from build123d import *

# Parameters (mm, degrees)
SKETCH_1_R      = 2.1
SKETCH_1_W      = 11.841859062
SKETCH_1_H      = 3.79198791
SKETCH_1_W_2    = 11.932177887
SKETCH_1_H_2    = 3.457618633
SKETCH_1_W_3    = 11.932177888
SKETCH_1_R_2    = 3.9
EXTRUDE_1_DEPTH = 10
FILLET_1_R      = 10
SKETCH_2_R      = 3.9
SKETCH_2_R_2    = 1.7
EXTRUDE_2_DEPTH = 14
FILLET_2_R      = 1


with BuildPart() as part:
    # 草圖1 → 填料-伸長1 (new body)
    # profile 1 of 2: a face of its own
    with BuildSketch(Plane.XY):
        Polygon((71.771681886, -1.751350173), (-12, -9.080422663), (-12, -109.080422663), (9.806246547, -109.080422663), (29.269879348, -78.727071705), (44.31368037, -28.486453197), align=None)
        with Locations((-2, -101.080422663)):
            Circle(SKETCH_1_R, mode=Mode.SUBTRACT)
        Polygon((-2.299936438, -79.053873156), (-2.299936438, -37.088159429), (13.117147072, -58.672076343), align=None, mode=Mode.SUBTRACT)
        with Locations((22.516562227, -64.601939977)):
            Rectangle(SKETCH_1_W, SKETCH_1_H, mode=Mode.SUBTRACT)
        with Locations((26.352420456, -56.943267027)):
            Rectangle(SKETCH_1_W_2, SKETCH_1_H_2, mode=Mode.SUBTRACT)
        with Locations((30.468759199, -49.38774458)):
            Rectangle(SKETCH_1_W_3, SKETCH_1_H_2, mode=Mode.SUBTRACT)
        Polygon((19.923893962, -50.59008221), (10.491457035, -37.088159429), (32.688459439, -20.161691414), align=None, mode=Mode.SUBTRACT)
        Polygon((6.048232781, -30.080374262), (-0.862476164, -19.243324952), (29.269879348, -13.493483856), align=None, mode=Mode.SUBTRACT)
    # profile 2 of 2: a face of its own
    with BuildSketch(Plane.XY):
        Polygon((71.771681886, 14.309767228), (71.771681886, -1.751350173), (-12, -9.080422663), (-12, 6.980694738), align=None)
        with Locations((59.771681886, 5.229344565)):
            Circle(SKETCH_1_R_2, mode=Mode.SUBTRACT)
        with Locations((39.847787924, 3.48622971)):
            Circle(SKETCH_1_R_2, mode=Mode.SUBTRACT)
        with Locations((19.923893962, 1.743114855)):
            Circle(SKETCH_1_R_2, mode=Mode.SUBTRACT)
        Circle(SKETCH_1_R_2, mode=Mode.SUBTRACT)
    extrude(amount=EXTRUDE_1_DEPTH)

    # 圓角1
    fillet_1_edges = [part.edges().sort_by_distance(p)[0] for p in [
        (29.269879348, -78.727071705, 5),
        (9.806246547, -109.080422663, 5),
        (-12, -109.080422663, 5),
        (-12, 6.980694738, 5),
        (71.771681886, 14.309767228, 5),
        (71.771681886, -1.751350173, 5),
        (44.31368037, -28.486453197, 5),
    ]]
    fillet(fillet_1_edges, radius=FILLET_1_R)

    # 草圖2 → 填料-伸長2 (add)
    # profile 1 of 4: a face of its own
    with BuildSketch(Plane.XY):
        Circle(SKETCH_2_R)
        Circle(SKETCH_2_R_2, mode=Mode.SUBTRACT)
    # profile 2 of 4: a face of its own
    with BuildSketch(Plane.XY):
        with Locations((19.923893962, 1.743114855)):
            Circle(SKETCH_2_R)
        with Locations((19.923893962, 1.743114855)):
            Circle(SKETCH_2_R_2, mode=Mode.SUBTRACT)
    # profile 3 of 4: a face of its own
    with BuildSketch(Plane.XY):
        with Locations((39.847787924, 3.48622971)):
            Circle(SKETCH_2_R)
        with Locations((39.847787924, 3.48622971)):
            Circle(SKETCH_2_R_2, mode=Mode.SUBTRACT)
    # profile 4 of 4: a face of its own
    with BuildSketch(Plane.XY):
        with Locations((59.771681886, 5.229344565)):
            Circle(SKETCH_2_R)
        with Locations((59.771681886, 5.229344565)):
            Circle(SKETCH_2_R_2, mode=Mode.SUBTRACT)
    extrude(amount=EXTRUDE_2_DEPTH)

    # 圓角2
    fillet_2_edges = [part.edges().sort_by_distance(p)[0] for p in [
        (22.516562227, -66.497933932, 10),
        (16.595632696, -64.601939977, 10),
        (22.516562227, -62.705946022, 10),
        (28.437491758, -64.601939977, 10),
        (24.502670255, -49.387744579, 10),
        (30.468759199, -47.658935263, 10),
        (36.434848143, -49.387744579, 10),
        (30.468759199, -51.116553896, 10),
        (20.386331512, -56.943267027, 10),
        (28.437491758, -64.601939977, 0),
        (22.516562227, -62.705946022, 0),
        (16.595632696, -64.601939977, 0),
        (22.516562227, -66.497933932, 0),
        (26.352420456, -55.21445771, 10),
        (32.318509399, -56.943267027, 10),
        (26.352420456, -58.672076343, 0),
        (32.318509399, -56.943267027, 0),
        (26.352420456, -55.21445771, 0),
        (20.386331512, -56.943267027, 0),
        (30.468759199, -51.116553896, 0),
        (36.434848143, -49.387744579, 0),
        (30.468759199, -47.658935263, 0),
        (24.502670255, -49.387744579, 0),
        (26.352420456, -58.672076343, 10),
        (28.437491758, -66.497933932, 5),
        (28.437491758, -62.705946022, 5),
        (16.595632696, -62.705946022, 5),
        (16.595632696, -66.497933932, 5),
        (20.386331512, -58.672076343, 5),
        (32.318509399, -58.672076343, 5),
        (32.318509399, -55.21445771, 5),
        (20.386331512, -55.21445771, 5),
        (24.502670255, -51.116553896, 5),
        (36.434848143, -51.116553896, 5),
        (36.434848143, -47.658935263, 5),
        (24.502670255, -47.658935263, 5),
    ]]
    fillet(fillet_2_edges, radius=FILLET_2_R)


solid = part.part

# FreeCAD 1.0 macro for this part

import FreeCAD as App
import Part
import Sketcher
Q = App.Units.Quantity


def edges_at(feature, points):
    """Names of the edges that pass closest to the given points."""
    edges = feature.Shape.Edges
    near = lambda p: min(range(len(edges)), key=lambda i: edges[i].distToShape(Part.Vertex(*p))[0])
    return sorted({f"Edge{near(p) + 1}" for p in points})


def add_polygon(sketch, points):
    """Adds a closed chain of lines whose ends are joined by coincident constraints."""
    first, n = sketch.GeometryCount, len(points)
    for a, b in zip(points, points[1:] + points[:1]):
        sketch.addGeometry(Part.LineSegment(App.Vector(*a, 0), App.Vector(*b, 0)), False)
    for i in range(n):
        sketch.addConstraint(Sketcher.Constraint("Coincident", first + i, 2, first + (i + 1) % n, 1))

doc = App.newDocument("Part")
body = doc.addObject("PartDesign::Body", "Body")

# Sketch on XY plane
sketch1 = body.newObject("Sketcher::SketchObject", "Sketch")
sketch1.AttachmentSupport = (doc.getObject("XY_Plane"), [""])
sketch1.MapMode = "FlatFace"
add_polygon(sketch1, [(44.31368, -28.486453), (71.771682, -1.75135), (71.771682, 14.309767), (-12, 6.980695), (-12, -109.080423), (9.806247, -109.080423), (29.269879, -78.727072)])  # lines 0-6
sketch1.addGeometry(Part.Circle(App.Vector(-2, -101.080423, 0), App.Vector(0, 0, 1), 2.1), False)  # 7
add_polygon(sketch1, [(28.437492, -66.497934), (16.595633, -66.497934), (16.595633, -62.705946), (28.437492, -62.705946)])  # lines 8-11
add_polygon(sketch1, [(13.117147, -58.672076), (-2.299936, -79.053873), (-2.299936, -37.088159)])  # lines 12-14
add_polygon(sketch1, [(29.269879, -13.493484), (6.048233, -30.080374), (-0.862476, -19.243325)])  # lines 15-17
add_polygon(sketch1, [(32.318509, -58.672076), (20.386332, -58.672076), (20.386332, -55.214458), (32.318509, -55.214458)])  # lines 18-21
add_polygon(sketch1, [(36.434848, -51.116554), (24.50267, -51.116554), (24.50267, -47.658935), (36.434848, -47.658935)])  # lines 22-25
add_polygon(sketch1, [(32.688459, -20.161691), (19.923894, -50.590082), (10.491457, -37.088159)])  # lines 26-28
sketch1.addGeometry(Part.Circle(App.Vector(39.847788, 3.48623, 0), App.Vector(0, 0, 1), 3.9), False)  # 29
sketch1.addGeometry(Part.Circle(App.Vector(19.923894, 1.743115, 0), App.Vector(0, 0, 1), 3.9), False)  # 30
sketch1.addGeometry(Part.Circle(App.Vector(0, 0, 0), App.Vector(0, 0, 1), 3.9), False)  # 31
sketch1.addGeometry(Part.Circle(App.Vector(59.771682, 5.229345, 0), App.Vector(0, 0, 1), 3.9), False)  # 32
sketch1.addConstraint(Sketcher.Constraint("Vertical", 1))
sketch1.addConstraint(Sketcher.Constraint("Vertical", 3))
sketch1.addConstraint(Sketcher.Constraint("Horizontal", 4))
sketch1.addConstraint(Sketcher.Constraint("Horizontal", 8))
sketch1.addConstraint(Sketcher.Constraint("Vertical", 9))
sketch1.addConstraint(Sketcher.Constraint("Horizontal", 10))
sketch1.addConstraint(Sketcher.Constraint("Vertical", 11))
sketch1.addConstraint(Sketcher.Constraint("Vertical", 13))
sketch1.addConstraint(Sketcher.Constraint("Horizontal", 18))
sketch1.addConstraint(Sketcher.Constraint("Vertical", 19))
sketch1.addConstraint(Sketcher.Constraint("Horizontal", 20))
sketch1.addConstraint(Sketcher.Constraint("Vertical", 21))
sketch1.addConstraint(Sketcher.Constraint("Horizontal", 22))
sketch1.addConstraint(Sketcher.Constraint("Vertical", 23))
sketch1.addConstraint(Sketcher.Constraint("Horizontal", 24))
sketch1.addConstraint(Sketcher.Constraint("Vertical", 25))
sketch1.addConstraint(Sketcher.Constraint("Coincident", 31, 3, -1, 1))
sketch1.addConstraint(Sketcher.Constraint("Equal", 29, 30))
sketch1.addConstraint(Sketcher.Constraint("Equal", 30, 31))
sketch1.addConstraint(Sketcher.Constraint("Equal", 31, 32))
sketch1.addConstraint(Sketcher.Constraint("Perpendicular", 14, 15))
sketch1.addConstraint(Sketcher.Constraint("Horizontal", 14, 2, 18, 2))
sketch1.addConstraint(Sketcher.Constraint("Horizontal", 13, 2, 27, 2))
sketch1.addConstraint(Sketcher.Constraint("Vertical", 5, 2, 17, 2))
sketch1.addConstraint(Sketcher.Constraint("Vertical", 30, 3, 26, 2))
sketch1.addConstraint(Sketcher.Constraint("Equal", 20, 22))
sketch1.addConstraint(Sketcher.Constraint("Equal", 21, 23))
sketch1.addConstraint(Sketcher.Constraint("Diameter", 7, 4.2))
sketch1.addConstraint(Sketcher.Constraint("Diameter", 29, 7.8))
sketch1.addConstraint(Sketcher.Constraint("Angle", 2, Q("-175 deg")))
sketch1.addConstraint(Sketcher.Constraint("DistanceX", 7, 3, -1, 1, 2.0))
sketch1.addConstraint(Sketcher.Constraint("DistanceX", 2, 2, -1, 1, 12.0))
sketch1.addConstraint(Sketcher.Constraint("DistanceX", 32, 3, 0, 2, 12.0))
sketch1.addConstraint(Sketcher.Constraint("DistanceY", 3, 2, 7, 3, 8.0))
sketch1.addConstraint(Sketcher.Constraint("DistanceX", 6, 2, 32, 3, 15.458002))
sketch1.addConstraint(Sketcher.Constraint("Distance", 12, 25.555902))
sketch1.addConstraint(Sketcher.Constraint("DistanceX", 8, 2, 8, 1, 11.841859))
sketch1.addConstraint(Sketcher.Constraint("DistanceY", 19, 1, 19, 2, 3.457619))
sketch1.addConstraint(Sketcher.Constraint("DistanceY", 5, 2, 29, 3, 82.213301))
sketch1.addConstraint(Sketcher.Constraint("DistanceY", 12, 2, 5, 2, 0.326801))
sketch1.addConstraint(Sketcher.Constraint("DistanceX", 15, 2, 9, 2, 10.5474))
sketch1.addConstraint(Sketcher.Constraint("DistanceY", 17, 2, 30, 3, 15.236599))
sketch1.addConstraint(Sketcher.Constraint("DistanceX", 17, 2, 6, 2, 15.043801))
sketch1.addConstraint(Sketcher.Constraint("DistanceX", 9, 2, 18, 2, 3.790699))
sketch1.addConstraint(Sketcher.Constraint("Distance", 0, 38.323721))
sketch1.addConstraint(Sketcher.Constraint("Distance", 17, 30.676041))
sketch1.addConstraint(Sketcher.Constraint("Distance", 26, 32.997289))
sketch1.addConstraint(Sketcher.Constraint("Distance", 27, 16.470361))
sketch1.addConstraint(Sketcher.Constraint("DistanceX", 4, 1, 4, 2, 21.806247))
sketch1.addConstraint(Sketcher.Constraint("DistanceX", 18, 2, 18, 1, 11.932178))
sketch1.addConstraint(Sketcher.Constraint("DistanceY", 1, 1, 1, 2, 16.061117))
sketch1.addConstraint(Sketcher.Constraint("DistanceY", 3, 2, 3, 1, 116.061117))
sketch1.addConstraint(Sketcher.Constraint("DistanceY", 9, 1, 9, 2, 3.791988))
sketch1.addConstraint(Sketcher.Constraint("DistanceY", 13, 1, 13, 2, 41.965714))
sketch1.addConstraint(Sketcher.Constraint("DistanceY", -1, 1, 29, 3, 3.48623))
sketch1.addConstraint(Sketcher.Constraint("DistanceX", -1, 1, 32, 3, 59.771682))
sketch1.addConstraint(Sketcher.Constraint("DistanceY", 0, 2, -1, 1, 1.75135))
sketch1.addConstraint(Sketcher.Constraint("DistanceX", -1, 1, 10, 2, 28.437492))
sketch1.addConstraint(Sketcher.Constraint("DistanceX", -1, 1, 22, 2, 24.50267))
sketch1.addConstraint(Sketcher.Constraint("DistanceX", -1, 1, 28, 2, 32.688459))
sketch1.addConstraint(Sketcher.Constraint("DistanceY", 28, 2, -1, 1, 20.161691))
sketch1.addConstraint(Sketcher.Constraint("DistanceY", 30, 3, 32, 3, 3.48623))
sketch1.addConstraint(Sketcher.Constraint("DistanceY", 30, 3, 2, 2, 5.23758))
sketch1.addConstraint(Sketcher.Constraint("DistanceX", 4, 2, 29, 3, 30.041541))
sketch1.addConstraint(Sketcher.Constraint("DistanceY", 7, 3, 8, 2, 34.582489))
sketch1.addConstraint(Sketcher.Constraint("DistanceX", 12, 2, 8, 2, 18.895569))
sketch1.addConstraint(Sketcher.Constraint("DistanceY", 9, 2, 14, 2, 4.03387))
sketch1.addConstraint(Sketcher.Constraint("DistanceX", 15, 2, 30, 3, 13.875661))
sketch1.addConstraint(Sketcher.Constraint("DistanceX", 16, 2, 15, 2, 6.910709))
sketch1.addConstraint(Sketcher.Constraint("DistanceY", 18, 2, 23, 2, 11.013141))
pad1 = body.newObject("PartDesign::Pad", "Pad")
pad1.Profile = sketch1
pad1.Length = 10
doc.recompute()

fillet = body.newObject("PartDesign::Fillet", "Fillet")
fillet.Base = (pad1, edges_at(pad1, [
    (29.27, -78.727, 5),
    (9.806, -109.08, 5),
    (-12, -109.08, 5),
    (-12, 6.981, 5),
    (71.772, 14.31, 5),
    (71.772, -1.751, 5),
    (44.314, -28.486, 5),
]))
fillet.Radius = 10

# Sketch on XY plane
sketch2 = body.newObject("Sketcher::SketchObject", "Sketch001")
sketch2.AttachmentSupport = (doc.getObject("XY_Plane"), [""])
sketch2.MapMode = "FlatFace"
sketch2.addGeometry(Part.Circle(App.Vector(0, 0, 0), App.Vector(0, 0, 1), 3.9), False)
sketch2.addGeometry(Part.Circle(App.Vector(0, 0, 0), App.Vector(0, 0, 1), 1.7), False)
sketch2.addGeometry(Part.Circle(App.Vector(19.923894, 1.743115, 0), App.Vector(0, 0, 1), 3.9), False)
sketch2.addGeometry(Part.Circle(App.Vector(19.923894, 1.743115, 0), App.Vector(0, 0, 1), 1.7), False)
sketch2.addGeometry(Part.Circle(App.Vector(39.847788, 3.48623, 0), App.Vector(0, 0, 1), 3.9), False)
sketch2.addGeometry(Part.Circle(App.Vector(39.847788, 3.48623, 0), App.Vector(0, 0, 1), 1.7), False)
sketch2.addGeometry(Part.Circle(App.Vector(59.771682, 5.229345, 0), App.Vector(0, 0, 1), 3.9), False)
sketch2.addGeometry(Part.Circle(App.Vector(59.771682, 5.229345, 0), App.Vector(0, 0, 1), 1.7), False)
sketch2.addConstraint(Sketcher.Constraint("Coincident", 0, 3, -1, 1))
sketch2.addConstraint(Sketcher.Constraint("Coincident", 1, 3, -1, 1))
sketch2.addConstraint(Sketcher.Constraint("Coincident", 3, 3, 2, 3))
sketch2.addConstraint(Sketcher.Constraint("Coincident", 5, 3, 4, 3))
sketch2.addConstraint(Sketcher.Constraint("Coincident", 7, 3, 6, 3))
sketch2.addConstraint(Sketcher.Constraint("Equal", 0, 2))
sketch2.addConstraint(Sketcher.Constraint("Equal", 1, 3))
sketch2.addConstraint(Sketcher.Constraint("Equal", 2, 4))
sketch2.addConstraint(Sketcher.Constraint("Equal", 3, 5))
sketch2.addConstraint(Sketcher.Constraint("Equal", 4, 6))
sketch2.addConstraint(Sketcher.Constraint("Equal", 5, 7))
sketch2.addConstraint(Sketcher.Constraint("Diameter", 0, 7.8))
sketch2.addConstraint(Sketcher.Constraint("Diameter", 1, 3.4))
sketch2.addConstraint(Sketcher.Constraint("DistanceY", -1, 1, 4, 3, 3.48623))
sketch2.addConstraint(Sketcher.Constraint("DistanceX", -1, 1, 6, 3, 59.771682))
sketch2.addConstraint(Sketcher.Constraint("DistanceY", 2, 3, 6, 3, 3.48623))
sketch2.addConstraint(Sketcher.Constraint("DistanceX", -1, 1, 2, 3, 19.923894))
sketch2.addConstraint(Sketcher.Constraint("DistanceY", -1, 1, 2, 3, 1.743115))
sketch2.addConstraint(Sketcher.Constraint("DistanceX", -1, 1, 4, 3, 39.847788))
pad2 = body.newObject("PartDesign::Pad", "Pad001")
pad2.Profile = sketch2
pad2.Length = 14
doc.recompute()

fillet2 = body.newObject("PartDesign::Fillet", "Fillet001")
fillet2.Base = (pad2, edges_at(pad2, [
    (22.517, -66.498, 10),
    (16.596, -64.602, 10),
    (22.517, -62.706, 10),
    (28.437, -64.602, 10),
    (24.503, -49.388, 10),
    (30.469, -47.659, 10),
    (36.435, -49.388, 10),
    (30.469, -51.117, 10),
    (20.386, -56.943, 10),
    (28.437, -64.602, 0),
    (22.517, -62.706, 0),
    (16.596, -64.602, 0),
    (22.517, -66.498, 0),
    (26.352, -55.214, 10),
    (32.319, -56.943, 10),
    (26.352, -58.672, 0),
    (32.319, -56.943, 0),
    (26.352, -55.214, 0),
    (20.386, -56.943, 0),
    (30.469, -51.117, 0),
    (36.435, -49.388, 0),
    (30.469, -47.659, 0),
    (24.503, -49.388, 0),
    (26.352, -58.672, 10),
    (28.437, -66.498, 5),
    (28.437, -62.706, 5),
    (16.596, -62.706, 5),
    (16.596, -66.498, 5),
    (20.386, -58.672, 5),
    (32.319, -58.672, 5),
    (32.319, -55.214, 5),
    (20.386, -55.214, 5),
    (24.503, -51.117, 5),
    (36.435, -51.117, 5),
    (36.435, -47.659, 5),
    (24.503, -47.659, 5),
]))
fillet2.Radius = 1

doc.recompute()
